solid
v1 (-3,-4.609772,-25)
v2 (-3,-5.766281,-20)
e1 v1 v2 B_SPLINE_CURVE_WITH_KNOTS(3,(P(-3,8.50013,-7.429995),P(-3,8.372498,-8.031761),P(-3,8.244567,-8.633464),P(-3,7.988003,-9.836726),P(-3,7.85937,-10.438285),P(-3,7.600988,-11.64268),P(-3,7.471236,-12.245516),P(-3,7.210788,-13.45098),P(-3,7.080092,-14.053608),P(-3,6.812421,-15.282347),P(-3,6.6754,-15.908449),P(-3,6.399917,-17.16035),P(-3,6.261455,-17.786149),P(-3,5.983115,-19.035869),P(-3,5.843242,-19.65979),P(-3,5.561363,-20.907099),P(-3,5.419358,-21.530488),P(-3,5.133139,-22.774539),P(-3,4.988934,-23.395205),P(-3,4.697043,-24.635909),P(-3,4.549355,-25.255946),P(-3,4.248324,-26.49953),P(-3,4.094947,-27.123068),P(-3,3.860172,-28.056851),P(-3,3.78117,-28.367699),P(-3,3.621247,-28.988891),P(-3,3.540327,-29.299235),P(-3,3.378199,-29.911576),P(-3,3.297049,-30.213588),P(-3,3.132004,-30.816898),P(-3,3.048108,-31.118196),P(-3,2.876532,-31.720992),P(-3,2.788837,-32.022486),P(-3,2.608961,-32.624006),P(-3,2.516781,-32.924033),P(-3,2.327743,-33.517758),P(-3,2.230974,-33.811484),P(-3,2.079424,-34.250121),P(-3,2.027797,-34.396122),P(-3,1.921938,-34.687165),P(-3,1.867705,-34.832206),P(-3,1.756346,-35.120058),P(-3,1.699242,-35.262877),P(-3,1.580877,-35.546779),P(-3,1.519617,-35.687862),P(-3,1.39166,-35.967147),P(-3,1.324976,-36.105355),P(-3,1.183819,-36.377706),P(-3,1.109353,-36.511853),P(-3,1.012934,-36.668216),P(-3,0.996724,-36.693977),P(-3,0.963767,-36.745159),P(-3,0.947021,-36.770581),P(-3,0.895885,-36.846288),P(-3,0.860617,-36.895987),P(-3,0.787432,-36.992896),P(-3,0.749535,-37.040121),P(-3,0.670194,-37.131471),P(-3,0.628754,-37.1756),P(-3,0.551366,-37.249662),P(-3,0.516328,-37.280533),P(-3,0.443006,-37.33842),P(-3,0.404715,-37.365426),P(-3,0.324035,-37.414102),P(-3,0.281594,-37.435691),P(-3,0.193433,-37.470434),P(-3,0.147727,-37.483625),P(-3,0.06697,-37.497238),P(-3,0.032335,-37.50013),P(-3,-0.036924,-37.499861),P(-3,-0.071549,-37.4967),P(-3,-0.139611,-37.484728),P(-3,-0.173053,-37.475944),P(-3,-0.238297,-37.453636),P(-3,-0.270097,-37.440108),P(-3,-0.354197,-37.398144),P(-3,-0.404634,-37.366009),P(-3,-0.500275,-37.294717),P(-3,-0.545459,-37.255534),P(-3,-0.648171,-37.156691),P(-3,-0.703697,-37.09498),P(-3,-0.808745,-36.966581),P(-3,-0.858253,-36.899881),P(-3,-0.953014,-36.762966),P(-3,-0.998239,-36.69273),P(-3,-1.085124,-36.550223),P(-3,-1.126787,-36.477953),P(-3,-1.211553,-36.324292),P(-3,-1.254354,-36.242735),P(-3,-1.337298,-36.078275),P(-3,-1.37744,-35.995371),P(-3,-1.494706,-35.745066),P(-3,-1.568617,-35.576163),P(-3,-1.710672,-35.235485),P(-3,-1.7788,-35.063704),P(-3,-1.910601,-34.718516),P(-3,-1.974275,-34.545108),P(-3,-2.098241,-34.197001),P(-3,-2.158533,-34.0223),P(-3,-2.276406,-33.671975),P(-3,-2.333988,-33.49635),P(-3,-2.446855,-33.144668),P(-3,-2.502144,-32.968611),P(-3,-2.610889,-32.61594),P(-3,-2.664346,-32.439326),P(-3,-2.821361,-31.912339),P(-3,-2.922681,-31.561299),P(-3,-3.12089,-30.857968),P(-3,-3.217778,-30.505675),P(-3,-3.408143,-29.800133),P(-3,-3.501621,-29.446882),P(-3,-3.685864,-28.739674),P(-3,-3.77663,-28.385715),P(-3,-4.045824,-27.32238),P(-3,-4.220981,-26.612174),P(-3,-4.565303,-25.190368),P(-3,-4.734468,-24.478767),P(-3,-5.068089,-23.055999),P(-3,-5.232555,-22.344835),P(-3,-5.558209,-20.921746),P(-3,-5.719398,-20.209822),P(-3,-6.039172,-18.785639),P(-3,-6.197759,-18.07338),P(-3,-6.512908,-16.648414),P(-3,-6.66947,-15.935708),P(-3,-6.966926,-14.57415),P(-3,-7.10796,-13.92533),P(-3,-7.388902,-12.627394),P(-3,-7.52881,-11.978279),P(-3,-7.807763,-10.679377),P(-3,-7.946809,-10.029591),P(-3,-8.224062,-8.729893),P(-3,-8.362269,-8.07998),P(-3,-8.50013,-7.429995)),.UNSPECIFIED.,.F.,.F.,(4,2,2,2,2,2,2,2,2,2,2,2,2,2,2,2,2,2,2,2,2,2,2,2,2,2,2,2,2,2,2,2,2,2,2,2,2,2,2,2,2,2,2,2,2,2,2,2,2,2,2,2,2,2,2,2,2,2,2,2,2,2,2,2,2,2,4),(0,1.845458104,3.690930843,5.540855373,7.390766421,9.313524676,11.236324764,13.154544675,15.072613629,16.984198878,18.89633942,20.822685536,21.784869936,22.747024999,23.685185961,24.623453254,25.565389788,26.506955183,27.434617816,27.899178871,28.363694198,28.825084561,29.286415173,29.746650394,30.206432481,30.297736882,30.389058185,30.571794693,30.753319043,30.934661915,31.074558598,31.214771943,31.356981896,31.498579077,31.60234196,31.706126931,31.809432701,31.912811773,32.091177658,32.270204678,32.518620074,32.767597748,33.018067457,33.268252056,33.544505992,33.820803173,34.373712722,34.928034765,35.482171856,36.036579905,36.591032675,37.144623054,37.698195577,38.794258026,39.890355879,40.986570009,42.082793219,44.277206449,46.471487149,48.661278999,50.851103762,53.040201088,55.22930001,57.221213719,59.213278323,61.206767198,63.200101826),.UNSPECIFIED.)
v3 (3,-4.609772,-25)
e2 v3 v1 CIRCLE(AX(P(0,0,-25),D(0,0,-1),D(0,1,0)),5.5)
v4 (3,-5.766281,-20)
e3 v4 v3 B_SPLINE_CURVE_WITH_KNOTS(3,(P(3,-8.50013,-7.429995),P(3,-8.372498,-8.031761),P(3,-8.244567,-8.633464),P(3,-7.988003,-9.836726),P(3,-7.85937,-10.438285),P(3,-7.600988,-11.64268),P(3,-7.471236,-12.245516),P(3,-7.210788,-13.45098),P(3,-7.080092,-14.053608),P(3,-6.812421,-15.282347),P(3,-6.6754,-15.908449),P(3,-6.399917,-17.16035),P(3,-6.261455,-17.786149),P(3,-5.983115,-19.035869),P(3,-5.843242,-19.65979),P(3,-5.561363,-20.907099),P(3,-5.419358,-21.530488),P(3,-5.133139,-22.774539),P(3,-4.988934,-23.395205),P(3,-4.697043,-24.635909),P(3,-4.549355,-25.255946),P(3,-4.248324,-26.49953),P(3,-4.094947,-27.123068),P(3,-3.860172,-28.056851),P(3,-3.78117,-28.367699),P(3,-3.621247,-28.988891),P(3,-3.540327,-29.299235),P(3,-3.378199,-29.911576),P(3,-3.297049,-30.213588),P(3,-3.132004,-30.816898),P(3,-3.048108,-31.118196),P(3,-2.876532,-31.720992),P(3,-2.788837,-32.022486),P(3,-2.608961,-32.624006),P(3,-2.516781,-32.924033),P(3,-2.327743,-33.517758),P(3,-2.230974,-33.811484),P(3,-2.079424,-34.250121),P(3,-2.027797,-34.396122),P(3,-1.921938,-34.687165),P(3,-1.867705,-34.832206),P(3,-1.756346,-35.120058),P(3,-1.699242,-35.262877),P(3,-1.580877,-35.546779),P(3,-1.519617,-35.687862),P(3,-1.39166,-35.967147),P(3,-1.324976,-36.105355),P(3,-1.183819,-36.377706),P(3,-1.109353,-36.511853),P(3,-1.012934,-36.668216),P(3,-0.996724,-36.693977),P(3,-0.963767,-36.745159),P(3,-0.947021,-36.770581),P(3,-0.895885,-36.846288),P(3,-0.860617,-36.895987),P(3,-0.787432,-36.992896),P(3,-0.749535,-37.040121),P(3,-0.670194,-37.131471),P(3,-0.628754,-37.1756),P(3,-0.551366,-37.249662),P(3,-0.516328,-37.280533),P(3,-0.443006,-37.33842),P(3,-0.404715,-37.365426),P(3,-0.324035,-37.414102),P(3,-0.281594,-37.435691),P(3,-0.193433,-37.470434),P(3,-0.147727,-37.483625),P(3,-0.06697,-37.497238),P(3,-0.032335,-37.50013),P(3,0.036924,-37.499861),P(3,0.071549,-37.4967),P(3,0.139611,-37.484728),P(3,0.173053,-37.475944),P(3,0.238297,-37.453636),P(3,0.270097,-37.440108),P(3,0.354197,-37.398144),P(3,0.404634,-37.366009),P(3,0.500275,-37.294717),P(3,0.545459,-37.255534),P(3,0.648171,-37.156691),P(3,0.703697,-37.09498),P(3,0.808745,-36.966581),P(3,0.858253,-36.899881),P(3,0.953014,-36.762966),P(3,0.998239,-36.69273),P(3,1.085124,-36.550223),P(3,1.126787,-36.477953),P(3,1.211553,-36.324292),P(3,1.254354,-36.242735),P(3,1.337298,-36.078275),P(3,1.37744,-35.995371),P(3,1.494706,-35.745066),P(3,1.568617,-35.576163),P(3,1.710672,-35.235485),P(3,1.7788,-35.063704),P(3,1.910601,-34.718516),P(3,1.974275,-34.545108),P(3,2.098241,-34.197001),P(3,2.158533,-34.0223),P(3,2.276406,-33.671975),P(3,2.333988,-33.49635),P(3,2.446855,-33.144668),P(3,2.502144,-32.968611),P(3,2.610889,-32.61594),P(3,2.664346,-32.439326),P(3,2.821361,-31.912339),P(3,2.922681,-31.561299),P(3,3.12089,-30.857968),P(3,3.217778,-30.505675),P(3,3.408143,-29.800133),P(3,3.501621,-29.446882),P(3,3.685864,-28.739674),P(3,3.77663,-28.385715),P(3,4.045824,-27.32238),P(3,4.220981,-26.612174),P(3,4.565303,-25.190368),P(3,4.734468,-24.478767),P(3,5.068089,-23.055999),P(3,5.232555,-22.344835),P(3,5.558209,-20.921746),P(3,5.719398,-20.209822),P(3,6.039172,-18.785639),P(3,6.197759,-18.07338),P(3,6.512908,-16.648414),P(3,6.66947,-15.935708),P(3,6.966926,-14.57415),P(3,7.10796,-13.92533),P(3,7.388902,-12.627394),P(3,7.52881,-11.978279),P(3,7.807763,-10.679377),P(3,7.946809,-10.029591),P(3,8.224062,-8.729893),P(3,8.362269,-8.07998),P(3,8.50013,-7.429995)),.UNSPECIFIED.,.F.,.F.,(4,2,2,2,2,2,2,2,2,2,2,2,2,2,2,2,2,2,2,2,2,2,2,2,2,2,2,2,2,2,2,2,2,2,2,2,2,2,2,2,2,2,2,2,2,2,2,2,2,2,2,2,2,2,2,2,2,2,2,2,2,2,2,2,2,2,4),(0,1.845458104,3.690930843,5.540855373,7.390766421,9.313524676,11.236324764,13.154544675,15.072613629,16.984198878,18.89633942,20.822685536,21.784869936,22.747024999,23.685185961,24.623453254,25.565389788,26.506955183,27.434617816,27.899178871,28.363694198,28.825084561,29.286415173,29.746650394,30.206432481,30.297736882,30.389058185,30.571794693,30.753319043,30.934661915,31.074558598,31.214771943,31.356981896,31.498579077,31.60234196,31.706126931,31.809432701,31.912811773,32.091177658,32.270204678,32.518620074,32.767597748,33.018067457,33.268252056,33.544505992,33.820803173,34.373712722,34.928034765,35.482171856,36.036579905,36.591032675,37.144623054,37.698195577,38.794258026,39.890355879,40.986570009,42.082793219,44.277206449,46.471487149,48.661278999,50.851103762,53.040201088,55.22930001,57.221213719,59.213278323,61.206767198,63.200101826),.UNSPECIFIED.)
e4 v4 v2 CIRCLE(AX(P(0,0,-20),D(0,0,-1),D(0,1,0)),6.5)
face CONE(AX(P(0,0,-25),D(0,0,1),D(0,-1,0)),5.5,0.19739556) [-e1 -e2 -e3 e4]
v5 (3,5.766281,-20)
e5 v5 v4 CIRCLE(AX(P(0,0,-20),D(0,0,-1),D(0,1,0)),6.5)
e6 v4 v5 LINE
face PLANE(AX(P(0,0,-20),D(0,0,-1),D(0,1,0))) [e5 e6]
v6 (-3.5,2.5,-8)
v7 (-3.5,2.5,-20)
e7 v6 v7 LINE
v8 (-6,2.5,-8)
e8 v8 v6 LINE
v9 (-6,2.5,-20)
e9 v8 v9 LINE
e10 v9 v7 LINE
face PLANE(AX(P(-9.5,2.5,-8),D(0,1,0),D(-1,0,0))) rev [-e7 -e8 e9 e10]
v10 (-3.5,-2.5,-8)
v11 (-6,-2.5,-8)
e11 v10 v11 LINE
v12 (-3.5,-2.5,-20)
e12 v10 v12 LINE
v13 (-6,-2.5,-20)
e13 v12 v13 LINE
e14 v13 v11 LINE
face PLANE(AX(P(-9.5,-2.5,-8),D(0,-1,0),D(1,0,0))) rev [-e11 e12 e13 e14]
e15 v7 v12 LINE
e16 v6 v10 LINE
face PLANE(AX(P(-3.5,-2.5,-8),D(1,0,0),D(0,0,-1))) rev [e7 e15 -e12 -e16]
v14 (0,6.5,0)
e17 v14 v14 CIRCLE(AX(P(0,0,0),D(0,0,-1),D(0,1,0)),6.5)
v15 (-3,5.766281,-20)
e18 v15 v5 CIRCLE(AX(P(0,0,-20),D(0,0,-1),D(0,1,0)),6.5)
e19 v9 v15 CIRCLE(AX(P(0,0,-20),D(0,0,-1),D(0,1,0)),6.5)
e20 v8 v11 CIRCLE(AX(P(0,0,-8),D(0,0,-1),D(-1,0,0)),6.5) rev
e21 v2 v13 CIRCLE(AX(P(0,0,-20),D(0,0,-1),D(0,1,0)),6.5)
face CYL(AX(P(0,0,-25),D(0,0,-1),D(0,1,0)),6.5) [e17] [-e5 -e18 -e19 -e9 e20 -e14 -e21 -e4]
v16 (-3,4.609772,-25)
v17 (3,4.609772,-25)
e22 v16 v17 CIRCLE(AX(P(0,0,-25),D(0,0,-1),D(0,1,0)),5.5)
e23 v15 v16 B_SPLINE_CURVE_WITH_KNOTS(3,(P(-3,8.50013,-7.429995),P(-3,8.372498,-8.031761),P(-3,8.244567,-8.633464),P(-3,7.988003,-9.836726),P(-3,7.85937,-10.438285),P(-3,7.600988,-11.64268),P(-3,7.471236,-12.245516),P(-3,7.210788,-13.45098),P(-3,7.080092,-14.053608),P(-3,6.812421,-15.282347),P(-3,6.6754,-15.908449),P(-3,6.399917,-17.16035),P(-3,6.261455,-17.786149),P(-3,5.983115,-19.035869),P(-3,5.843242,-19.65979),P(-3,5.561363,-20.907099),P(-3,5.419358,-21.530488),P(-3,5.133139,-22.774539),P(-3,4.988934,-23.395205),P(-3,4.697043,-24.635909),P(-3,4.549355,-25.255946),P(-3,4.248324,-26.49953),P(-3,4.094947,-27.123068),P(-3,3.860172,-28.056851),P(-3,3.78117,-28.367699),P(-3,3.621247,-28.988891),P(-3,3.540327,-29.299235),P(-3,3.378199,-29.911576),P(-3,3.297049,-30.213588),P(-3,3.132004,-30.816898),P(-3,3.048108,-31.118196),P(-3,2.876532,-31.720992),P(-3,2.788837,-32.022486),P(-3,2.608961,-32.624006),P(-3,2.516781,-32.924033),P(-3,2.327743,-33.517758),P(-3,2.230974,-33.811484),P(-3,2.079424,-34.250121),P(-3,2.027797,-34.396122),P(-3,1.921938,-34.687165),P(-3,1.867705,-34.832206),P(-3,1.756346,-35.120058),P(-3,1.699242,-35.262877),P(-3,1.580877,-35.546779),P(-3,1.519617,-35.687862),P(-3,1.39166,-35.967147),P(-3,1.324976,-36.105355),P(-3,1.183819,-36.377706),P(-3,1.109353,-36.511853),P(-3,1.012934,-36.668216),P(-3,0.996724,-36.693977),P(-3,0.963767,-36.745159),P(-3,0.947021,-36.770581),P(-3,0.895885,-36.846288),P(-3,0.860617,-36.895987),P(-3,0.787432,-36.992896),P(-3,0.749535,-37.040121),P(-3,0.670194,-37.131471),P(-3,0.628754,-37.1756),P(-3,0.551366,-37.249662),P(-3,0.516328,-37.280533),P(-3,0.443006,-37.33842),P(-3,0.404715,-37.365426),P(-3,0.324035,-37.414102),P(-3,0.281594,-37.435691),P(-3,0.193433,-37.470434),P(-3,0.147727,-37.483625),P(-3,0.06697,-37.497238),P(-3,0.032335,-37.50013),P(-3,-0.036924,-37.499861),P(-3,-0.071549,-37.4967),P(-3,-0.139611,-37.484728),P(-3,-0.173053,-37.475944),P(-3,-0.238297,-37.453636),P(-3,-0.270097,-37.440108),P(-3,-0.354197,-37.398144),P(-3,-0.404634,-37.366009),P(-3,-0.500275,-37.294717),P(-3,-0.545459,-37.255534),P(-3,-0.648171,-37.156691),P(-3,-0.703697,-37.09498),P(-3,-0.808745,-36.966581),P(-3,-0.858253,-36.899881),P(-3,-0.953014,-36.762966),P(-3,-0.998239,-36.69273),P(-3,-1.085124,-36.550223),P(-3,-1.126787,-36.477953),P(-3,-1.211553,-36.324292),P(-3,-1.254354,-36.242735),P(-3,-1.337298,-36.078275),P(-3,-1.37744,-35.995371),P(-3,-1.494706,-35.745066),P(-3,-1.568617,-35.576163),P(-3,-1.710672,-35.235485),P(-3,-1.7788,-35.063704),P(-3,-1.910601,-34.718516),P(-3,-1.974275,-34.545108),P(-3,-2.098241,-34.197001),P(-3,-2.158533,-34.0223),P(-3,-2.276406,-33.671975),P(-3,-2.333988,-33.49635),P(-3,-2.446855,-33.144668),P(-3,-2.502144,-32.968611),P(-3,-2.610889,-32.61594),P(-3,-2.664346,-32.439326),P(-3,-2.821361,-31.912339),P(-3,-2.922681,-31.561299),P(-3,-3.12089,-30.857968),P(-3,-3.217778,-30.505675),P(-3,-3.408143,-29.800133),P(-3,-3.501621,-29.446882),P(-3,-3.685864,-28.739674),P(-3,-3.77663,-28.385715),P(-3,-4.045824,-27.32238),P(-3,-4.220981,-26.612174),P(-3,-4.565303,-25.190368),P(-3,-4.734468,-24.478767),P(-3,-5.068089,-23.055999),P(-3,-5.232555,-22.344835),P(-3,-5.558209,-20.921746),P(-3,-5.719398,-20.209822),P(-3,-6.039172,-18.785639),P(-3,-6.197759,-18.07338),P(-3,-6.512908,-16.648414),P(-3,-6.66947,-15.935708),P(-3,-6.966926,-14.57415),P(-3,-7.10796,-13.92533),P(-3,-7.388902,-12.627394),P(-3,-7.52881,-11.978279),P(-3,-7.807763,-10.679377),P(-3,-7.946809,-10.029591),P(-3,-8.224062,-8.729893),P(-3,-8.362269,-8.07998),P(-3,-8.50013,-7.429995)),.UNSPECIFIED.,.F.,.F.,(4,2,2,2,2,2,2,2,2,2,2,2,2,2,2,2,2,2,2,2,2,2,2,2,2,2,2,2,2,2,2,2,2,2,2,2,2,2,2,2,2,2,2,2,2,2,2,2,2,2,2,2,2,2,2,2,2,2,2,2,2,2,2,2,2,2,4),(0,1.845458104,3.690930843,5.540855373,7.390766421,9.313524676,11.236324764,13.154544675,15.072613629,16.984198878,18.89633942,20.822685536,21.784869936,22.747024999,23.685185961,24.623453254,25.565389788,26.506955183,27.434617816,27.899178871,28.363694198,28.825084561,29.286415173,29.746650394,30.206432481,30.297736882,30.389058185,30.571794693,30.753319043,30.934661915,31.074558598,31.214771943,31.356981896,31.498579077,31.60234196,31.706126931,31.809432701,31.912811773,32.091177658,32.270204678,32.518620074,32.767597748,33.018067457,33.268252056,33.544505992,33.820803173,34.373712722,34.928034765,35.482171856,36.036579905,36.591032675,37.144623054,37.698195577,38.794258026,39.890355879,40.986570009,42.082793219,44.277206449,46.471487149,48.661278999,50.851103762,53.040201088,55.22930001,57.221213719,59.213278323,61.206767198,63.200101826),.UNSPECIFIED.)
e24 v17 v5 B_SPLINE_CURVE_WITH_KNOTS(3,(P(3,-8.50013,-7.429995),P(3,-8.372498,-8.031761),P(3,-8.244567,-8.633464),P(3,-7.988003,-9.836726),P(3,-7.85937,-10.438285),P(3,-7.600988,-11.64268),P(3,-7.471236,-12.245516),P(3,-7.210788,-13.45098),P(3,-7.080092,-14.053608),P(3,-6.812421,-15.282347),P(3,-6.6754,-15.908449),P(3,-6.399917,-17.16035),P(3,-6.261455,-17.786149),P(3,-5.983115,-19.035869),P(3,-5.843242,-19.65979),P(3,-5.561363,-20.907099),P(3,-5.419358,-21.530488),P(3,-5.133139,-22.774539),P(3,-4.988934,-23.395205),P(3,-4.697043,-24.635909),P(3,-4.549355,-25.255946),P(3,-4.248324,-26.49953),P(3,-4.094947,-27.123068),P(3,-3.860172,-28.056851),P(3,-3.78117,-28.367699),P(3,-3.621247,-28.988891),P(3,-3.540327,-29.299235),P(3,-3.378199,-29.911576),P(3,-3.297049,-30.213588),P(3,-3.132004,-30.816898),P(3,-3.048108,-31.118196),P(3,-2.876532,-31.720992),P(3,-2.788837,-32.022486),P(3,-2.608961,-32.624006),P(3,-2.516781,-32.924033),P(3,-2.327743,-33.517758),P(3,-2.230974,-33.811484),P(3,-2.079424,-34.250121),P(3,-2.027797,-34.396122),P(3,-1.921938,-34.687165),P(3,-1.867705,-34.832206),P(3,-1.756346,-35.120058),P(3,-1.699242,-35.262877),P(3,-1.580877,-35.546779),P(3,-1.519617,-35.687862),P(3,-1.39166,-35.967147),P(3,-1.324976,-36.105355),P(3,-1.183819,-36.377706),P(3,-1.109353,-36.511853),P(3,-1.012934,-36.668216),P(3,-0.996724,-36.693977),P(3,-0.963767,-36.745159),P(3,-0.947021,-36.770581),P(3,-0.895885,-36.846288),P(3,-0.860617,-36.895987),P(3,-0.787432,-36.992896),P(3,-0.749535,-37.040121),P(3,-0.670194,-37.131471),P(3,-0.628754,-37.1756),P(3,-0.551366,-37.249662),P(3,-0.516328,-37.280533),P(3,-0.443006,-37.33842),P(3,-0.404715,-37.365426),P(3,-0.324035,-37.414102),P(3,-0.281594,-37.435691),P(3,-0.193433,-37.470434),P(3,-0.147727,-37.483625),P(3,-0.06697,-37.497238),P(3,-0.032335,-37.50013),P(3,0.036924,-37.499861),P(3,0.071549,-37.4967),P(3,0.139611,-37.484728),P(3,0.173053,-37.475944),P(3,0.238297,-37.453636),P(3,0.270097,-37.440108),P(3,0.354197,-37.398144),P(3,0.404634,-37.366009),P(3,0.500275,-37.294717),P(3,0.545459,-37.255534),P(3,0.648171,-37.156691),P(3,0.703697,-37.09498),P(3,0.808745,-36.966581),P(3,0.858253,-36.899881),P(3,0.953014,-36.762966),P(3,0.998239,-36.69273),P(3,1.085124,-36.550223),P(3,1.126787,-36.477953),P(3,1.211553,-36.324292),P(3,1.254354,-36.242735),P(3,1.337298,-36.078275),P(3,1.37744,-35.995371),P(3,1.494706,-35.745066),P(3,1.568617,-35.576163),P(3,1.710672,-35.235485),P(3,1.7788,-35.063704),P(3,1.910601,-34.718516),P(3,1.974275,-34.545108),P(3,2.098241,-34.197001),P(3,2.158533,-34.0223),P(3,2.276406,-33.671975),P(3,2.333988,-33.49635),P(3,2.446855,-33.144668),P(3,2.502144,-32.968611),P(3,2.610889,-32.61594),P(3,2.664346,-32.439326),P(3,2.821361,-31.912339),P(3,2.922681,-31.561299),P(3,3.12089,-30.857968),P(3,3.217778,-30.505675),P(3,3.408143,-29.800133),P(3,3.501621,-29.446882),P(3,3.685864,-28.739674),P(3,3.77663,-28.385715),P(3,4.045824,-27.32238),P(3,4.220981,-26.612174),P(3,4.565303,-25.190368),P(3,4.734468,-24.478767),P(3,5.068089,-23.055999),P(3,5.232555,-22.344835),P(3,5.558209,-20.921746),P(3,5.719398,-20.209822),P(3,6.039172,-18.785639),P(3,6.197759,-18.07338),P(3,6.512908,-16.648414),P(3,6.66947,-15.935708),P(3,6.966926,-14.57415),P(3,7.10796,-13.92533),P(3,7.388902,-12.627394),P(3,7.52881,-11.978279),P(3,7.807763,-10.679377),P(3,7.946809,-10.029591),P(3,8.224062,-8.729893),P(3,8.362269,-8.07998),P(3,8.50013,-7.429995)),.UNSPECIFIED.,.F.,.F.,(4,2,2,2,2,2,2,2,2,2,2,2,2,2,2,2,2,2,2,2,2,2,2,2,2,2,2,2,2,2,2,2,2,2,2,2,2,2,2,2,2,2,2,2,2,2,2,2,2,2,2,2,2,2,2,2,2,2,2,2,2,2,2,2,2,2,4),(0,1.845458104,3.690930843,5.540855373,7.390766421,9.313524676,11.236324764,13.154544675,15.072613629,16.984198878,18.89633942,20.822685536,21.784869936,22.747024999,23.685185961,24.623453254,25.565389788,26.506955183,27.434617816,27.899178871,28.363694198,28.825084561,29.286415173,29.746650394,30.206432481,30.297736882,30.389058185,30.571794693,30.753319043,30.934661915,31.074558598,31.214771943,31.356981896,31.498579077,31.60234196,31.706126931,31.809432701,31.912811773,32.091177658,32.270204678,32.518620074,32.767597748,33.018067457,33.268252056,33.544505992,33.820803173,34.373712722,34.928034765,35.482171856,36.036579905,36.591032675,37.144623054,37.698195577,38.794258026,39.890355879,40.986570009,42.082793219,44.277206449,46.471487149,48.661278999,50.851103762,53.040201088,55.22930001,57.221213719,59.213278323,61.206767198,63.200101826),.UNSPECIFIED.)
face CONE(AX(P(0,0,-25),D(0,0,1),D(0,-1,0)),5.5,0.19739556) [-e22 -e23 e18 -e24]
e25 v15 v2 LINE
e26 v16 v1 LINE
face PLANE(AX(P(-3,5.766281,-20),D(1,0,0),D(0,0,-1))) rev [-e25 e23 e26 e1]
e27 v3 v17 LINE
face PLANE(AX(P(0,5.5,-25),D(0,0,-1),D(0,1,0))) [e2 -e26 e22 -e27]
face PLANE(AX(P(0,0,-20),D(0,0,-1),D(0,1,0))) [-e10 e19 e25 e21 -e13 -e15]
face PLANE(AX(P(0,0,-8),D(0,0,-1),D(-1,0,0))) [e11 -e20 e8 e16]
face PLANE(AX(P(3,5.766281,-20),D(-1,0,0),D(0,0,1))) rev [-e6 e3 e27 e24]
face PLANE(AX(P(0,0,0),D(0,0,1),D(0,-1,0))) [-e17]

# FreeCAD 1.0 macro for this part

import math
import FreeCAD as App
import Part
import Sketcher
from FreeCAD import Vector

doc = App.newDocument("Part")
body = doc.addObject("PartDesign::Body", "Body")

# Sketch on YZ plane
sketch1 = body.newObject("Sketcher::SketchObject", "Sketch")
sketch1.AttachmentSupport = (doc.getObject("YZ_Plane"), [""])
sketch1.MapMode = "FlatFace"
sketch1.addGeometry([
    Part.LineSegment(Vector(6, 0, 0), Vector(0, 0, 0)),  # 0
    Part.LineSegment(Vector(0, 0, 0), Vector(0, -25, 0)),  # 1
    Part.LineSegment(Vector(0, -25, 0), Vector(6, -25, 0)),  # 2
    Part.LineSegment(Vector(6, -25, 0), Vector(6, -20, 0)),  # 3
    Part.LineSegment(Vector(6, -20, 0), Vector(6, 0, 0)),  # 4
], False)
sketch1.addConstraint([
    Sketcher.Constraint("Coincident", 0, 2, 1, 1),
    Sketcher.Constraint("Coincident", 1, 2, 2, 1),
    Sketcher.Constraint("Coincident", 2, 2, 3, 1),
    Sketcher.Constraint("Coincident", 3, 2, 4, 1),
    Sketcher.Constraint("Coincident", 4, 2, 0, 1),
    Sketcher.Constraint("Horizontal", 0),
    Sketcher.Constraint("Vertical", 1),
    Sketcher.Constraint("Horizontal", 2),
    Sketcher.Constraint("Vertical", 4),
    Sketcher.Constraint("Coincident", 0, 2, -1, 1),
    Sketcher.Constraint("DistanceY", 1, 2, 1, 1, 25.0),
    Sketcher.Constraint("DistanceY", 4, 1, 4, 2, 20.0),
    Sketcher.Constraint("DistanceX", 0, 2, 0, 1, 6.5),
    Sketcher.Constraint("DistanceX", 2, 1, 2, 2, 5.5),
])
revolution = body.newObject("PartDesign::Revolution", "Revolution")
revolution.Profile = sketch1
revolution.ReferenceAxis = (sketch1, ["V_Axis"])
revolution.Angle = 360

# Sketch on XY plane
sketch2 = body.newObject("Sketcher::SketchObject", "Sketch001")
sketch2.AttachmentSupport = (doc.getObject("XY_Plane"), [""])
sketch2.MapMode = "FlatFace"
sketch2.AttachmentOffset = App.Placement(Vector(0, 0, -25), App.Rotation())
sketch2.addGeometry([
    Part.LineSegment(Vector(3, -6, 0), Vector(3, 6, 0)),
    Part.ArcOfCircle(Part.Circle(Vector(0, 0, 0), Vector(0, 0, 1), 6), math.radians(-63), math.radians(63)),
    Part.LineSegment(Vector(-3, 6, 0), Vector(-3, -6, 0)),
    Part.ArcOfCircle(Part.Circle(Vector(0, 0, 0), Vector(0, 0, 1), 6), math.radians(117), math.radians(243)),
], False)
sketch2.addConstraint([
    Sketcher.Constraint("Coincident", 0, 1, 1, 1),
    Sketcher.Constraint("Coincident", 1, 2, 0, 2),
    Sketcher.Constraint("Coincident", 2, 1, 3, 1),
    Sketcher.Constraint("Coincident", 3, 2, 2, 2),
    Sketcher.Constraint("Vertical", 0),
    Sketcher.Constraint("Vertical", 2),
    Sketcher.Constraint("Coincident", 1, 3, -1, 1),
    Sketcher.Constraint("Coincident", 3, 3, -1, 1),
    Sketcher.Constraint("Equal", 1, 3),
    Sketcher.Constraint("Horizontal", 1, 2, 2, 1),
    Sketcher.Constraint("Radius", 1, 6.5),
    Sketcher.Constraint("DistanceX", -1, 1, 0, 1, 3.0),
])
pocket1 = body.newObject("PartDesign::Pocket", "Pocket")
pocket1.Profile = sketch2
pocket1.Length = 5
pocket1.Reversed = True

# Sketch on XY plane
sketch3 = body.newObject("Sketcher::SketchObject", "Sketch002")
sketch3.AttachmentSupport = (doc.getObject("XY_Plane"), [""])
sketch3.MapMode = "FlatFace"
sketch3.AttachmentOffset = App.Placement(Vector(0, 0, -20), App.Rotation())
sketch3.addGeometry([
    Part.LineSegment(Vector(-4, 2, 0), Vector(-4, -2, 0)),
    Part.LineSegment(Vector(-4, -2, 0), Vector(-10, -2, 0)),
    Part.LineSegment(Vector(-10, -2, 0), Vector(-10, 2, 0)),
    Part.LineSegment(Vector(-10, 2, 0), Vector(-4, 2, 0)),
], False)
sketch3.addConstraint([
    Sketcher.Constraint("Coincident", 0, 2, 1, 1),
    Sketcher.Constraint("Coincident", 1, 2, 2, 1),
    Sketcher.Constraint("Coincident", 2, 2, 3, 1),
    Sketcher.Constraint("Coincident", 3, 2, 0, 1),
    Sketcher.Constraint("Vertical", 0),
    Sketcher.Constraint("Horizontal", 1),
    Sketcher.Constraint("Vertical", 2),
    Sketcher.Constraint("Horizontal", 3),
    Sketcher.Constraint("DistanceX", 1, 2, 1, 1, 6.0),
    Sketcher.Constraint("DistanceY", 0, 2, 0, 1, 5.0),
    Sketcher.Constraint("DistanceX", 0, 2, -1, 1, 3.5),
    Sketcher.Constraint("DistanceY", 0, 2, -1, 1, 2.5),
])
pocket2 = body.newObject("PartDesign::Pocket", "Pocket001")
pocket2.Profile = sketch3
pocket2.Length = 12
pocket2.Reversed = True

doc.recompute()
